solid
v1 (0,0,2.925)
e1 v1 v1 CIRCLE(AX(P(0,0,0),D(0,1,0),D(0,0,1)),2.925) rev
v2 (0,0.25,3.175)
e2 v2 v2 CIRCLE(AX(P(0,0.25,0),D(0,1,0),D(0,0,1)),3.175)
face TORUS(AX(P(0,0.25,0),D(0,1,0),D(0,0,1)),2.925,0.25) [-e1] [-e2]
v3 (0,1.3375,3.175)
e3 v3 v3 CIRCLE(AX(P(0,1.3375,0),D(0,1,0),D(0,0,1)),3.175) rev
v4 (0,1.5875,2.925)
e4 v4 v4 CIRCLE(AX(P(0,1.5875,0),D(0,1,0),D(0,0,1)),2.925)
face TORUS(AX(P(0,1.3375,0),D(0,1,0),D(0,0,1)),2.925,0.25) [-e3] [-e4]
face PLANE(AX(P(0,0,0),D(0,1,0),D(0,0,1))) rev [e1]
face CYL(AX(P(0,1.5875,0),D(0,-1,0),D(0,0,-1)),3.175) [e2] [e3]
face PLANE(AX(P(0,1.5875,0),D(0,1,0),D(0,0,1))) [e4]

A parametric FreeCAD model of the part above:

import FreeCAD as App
import Part
import Sketcher
from FreeCAD import Vector
Q = App.Units.Quantity


def edges_at(feature, points):
    """Names of the edges that pass closest to the given points."""
    edges = feature.Shape.Edges
    near = lambda p: min(range(len(edges)), key=lambda i: edges[i].distToShape(Part.Vertex(*p))[0])
    return sorted({f"Edge{near(p) + 1}" for p in points})

doc = App.newDocument("Part")
body = doc.addObject("PartDesign::Body", "Body")

# Sketch on XZ plane
sketch1 = body.newObject("Sketcher::SketchObject", "Sketch")
sketch1.AttachmentSupport = (doc.getObject("XZ_Plane"), [""])
sketch1.MapMode = "FlatFace"
sketch1.addGeometry(Part.Circle(Vector(0, 0, 0), Vector(0, 0, 1), 3.175), False)
sketch1.addConstraint([
    Sketcher.Constraint("Coincident", 0, 3, -1, 1),
    Sketcher.Constraint("Diameter", 0, Q("0.25 in")),
])
pad1 = body.newObject("PartDesign::Pad", "Pad")
pad1.Profile = sketch1
pad1.Length = Q("0.0625 in")
pad1.Reversed = True
doc.recompute()

fillet = body.newObject("PartDesign::Fillet", "Fillet")
fillet.Base = (pad1, edges_at(pad1, [(-3.175, 0, 0), (-3.175, 1.587, 0)]))
fillet.Radius = 0.25

doc.recompute()
